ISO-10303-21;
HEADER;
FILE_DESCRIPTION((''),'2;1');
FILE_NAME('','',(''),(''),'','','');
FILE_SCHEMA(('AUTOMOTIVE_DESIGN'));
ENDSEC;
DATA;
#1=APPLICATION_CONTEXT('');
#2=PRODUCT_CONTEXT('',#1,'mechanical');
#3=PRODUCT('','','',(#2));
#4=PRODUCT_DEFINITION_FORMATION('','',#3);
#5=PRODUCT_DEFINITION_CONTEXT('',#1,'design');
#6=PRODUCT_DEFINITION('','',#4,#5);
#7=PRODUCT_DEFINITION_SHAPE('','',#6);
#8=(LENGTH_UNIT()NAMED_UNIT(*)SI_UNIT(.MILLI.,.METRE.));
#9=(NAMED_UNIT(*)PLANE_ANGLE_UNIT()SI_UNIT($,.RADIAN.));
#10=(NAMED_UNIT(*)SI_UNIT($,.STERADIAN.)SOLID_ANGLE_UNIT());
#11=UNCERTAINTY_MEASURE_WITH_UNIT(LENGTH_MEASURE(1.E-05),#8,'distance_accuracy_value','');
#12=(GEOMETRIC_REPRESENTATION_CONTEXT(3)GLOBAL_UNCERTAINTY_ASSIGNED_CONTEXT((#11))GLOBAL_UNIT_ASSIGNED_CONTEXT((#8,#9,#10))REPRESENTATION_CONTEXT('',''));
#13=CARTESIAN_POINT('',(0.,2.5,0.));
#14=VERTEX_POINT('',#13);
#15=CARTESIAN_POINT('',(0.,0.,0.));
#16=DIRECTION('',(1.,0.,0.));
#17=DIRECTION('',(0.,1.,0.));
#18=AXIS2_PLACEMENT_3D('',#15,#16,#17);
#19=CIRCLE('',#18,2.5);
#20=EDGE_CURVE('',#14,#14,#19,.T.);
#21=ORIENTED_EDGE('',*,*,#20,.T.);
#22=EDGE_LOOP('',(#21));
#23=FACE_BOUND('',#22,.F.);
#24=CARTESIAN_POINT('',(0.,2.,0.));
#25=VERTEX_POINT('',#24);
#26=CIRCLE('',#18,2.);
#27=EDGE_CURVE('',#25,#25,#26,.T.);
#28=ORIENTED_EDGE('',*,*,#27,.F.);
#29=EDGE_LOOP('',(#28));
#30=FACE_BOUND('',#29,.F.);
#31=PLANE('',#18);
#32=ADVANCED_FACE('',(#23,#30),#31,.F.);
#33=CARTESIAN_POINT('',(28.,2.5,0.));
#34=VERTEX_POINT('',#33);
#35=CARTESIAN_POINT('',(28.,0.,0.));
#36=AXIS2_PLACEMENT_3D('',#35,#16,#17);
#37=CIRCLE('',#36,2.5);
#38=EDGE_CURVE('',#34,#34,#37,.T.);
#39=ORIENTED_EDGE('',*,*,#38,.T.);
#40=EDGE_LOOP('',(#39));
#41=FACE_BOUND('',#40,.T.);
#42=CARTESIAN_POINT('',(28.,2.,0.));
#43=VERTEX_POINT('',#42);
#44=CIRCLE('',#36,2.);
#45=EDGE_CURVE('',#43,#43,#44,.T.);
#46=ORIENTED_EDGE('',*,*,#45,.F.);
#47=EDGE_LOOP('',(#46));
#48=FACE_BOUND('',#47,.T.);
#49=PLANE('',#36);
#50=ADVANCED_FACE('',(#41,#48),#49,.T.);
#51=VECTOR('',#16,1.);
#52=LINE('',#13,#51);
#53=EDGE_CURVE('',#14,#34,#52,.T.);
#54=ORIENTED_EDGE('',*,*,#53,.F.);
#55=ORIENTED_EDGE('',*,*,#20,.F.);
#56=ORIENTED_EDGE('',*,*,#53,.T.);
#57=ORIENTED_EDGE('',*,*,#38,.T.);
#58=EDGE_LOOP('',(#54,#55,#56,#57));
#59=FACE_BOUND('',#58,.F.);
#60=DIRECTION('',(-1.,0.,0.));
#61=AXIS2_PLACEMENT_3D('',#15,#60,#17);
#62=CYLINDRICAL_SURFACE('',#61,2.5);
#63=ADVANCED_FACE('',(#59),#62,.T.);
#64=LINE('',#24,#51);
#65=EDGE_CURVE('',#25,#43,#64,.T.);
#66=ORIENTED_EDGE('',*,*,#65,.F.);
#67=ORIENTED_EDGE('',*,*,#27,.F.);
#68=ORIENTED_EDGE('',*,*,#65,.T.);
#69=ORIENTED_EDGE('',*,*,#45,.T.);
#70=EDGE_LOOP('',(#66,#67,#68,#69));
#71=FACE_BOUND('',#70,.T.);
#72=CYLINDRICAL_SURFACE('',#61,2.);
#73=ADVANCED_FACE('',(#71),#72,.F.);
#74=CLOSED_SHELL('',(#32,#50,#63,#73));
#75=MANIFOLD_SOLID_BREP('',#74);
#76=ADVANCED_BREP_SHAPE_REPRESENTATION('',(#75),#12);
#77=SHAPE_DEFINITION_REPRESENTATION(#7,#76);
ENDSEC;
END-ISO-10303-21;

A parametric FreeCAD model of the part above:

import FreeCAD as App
import Part
import Sketcher
Q = App.Units.Quantity

doc = App.newDocument("Part")
body = doc.addObject("PartDesign::Body", "Body")

# Sketch on YZ plane
sketch1 = body.newObject("Sketcher::SketchObject", "Sketch")
sketch1.AttachmentSupport = (doc.getObject("YZ_Plane"), [""])
sketch1.MapMode = "FlatFace"
sketch1.addGeometry(Part.Circle(App.Vector(0, 0, 0), App.Vector(0, 0, 1), 2.5), False)
sketch1.addGeometry(Part.Circle(App.Vector(0, 0, 0), App.Vector(0, 0, 1), 2), False)
sketch1.addConstraint(Sketcher.Constraint("Coincident", 0, 3, -1, 1))
sketch1.addConstraint(Sketcher.Constraint("Coincident", 1, 3, -1, 1))
sketch1.addConstraint(Sketcher.Constraint("Diameter", 0, Q("5 mm")))
sketch1.addConstraint(Sketcher.Constraint("Diameter", 1, Q("4 mm")))
pad1 = body.newObject("PartDesign::Pad", "Pad")
pad1.Profile = sketch1
pad1.Length = 28

doc.recompute()
